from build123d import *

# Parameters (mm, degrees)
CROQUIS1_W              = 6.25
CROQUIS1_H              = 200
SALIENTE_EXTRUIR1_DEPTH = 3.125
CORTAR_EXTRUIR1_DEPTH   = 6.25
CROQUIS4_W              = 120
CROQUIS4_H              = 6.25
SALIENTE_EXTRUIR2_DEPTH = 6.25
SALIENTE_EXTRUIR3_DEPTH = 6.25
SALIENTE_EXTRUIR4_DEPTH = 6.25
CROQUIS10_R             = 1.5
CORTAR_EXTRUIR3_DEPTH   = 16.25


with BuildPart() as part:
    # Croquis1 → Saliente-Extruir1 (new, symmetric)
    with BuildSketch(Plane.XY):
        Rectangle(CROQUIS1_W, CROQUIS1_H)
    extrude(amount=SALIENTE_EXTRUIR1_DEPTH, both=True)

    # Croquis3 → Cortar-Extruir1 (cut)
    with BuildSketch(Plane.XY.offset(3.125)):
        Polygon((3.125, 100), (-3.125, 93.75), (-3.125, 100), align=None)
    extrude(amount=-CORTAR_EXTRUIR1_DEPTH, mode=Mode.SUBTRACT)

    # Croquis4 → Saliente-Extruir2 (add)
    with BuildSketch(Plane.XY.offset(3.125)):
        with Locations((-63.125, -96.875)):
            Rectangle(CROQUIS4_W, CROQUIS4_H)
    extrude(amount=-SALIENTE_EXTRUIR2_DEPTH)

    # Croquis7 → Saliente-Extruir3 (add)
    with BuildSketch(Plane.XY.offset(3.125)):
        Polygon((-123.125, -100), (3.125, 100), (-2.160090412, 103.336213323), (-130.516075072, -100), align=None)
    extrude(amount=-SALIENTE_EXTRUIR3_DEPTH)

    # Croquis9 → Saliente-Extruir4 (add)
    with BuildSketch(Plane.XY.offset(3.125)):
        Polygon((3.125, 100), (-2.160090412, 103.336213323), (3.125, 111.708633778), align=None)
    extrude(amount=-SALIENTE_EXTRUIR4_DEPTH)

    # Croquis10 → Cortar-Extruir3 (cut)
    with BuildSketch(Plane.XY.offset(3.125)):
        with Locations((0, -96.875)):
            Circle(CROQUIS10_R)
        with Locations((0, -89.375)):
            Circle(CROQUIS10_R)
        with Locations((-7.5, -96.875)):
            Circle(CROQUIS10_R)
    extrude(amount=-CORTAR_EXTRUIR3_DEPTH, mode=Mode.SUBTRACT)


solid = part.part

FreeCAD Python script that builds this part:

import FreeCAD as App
import Part
import Sketcher

V = App.Vector

doc = App.newDocument("Part")
body = doc.addObject("PartDesign::Body", "Body")

# Sketch on XY plane
sketch1 = body.newObject("Sketcher::SketchObject", "Sketch")
sketch1.AttachmentSupport = (doc.getObject("XY_Plane"), [""])
sketch1.MapMode = "FlatFace"
sketch1.addGeometry([
    Part.LineSegment(V(-3.125, 100, 0), V(-3.125, -100, 0)),
    Part.LineSegment(V(-3.125, -100, 0), V(3.125, -100, 0)),
    Part.LineSegment(V(3.125, -100, 0), V(3.125, 100, 0)),
    Part.LineSegment(V(3.125, 100, 0), V(-3.125, 100, 0)),
], False)
sketch1.addConstraint([
    Sketcher.Constraint("Coincident", 0, 2, 1, 1),
    Sketcher.Constraint("Coincident", 1, 2, 2, 1),
    Sketcher.Constraint("Coincident", 2, 2, 3, 1),
    Sketcher.Constraint("Coincident", 3, 2, 0, 1),
    Sketcher.Constraint("Vertical", 0),
    Sketcher.Constraint("Horizontal", 1),
    Sketcher.Constraint("Vertical", 2),
    Sketcher.Constraint("Horizontal", 3),
    Sketcher.Constraint("Symmetric", 0, 2, 2, 2, -1, 1),
    Sketcher.Constraint("DistanceY", 0, 2, 0, 1, 200.0),
    Sketcher.Constraint("DistanceX", 1, 1, 1, 2, 6.25),
])
pad1 = body.newObject("PartDesign::Pad", "Pad")
pad1.Profile = sketch1
pad1.Length = 6.25
pad1.Midplane = True

# Sketch on XY plane
sketch2 = body.newObject("Sketcher::SketchObject", "Sketch001")
sketch2.AttachmentSupport = (doc.getObject("XY_Plane"), [""])
sketch2.MapMode = "FlatFace"
sketch2.AttachmentOffset = App.Placement(V(0, 0, 3.125), App.Rotation())
sketch2.addGeometry([
    Part.LineSegment(V(-3.125, 93.75, 0), V(3.125, 100, 0)),
    Part.LineSegment(V(3.125, 100, 0), V(-3.125, 100, 0)),
    Part.LineSegment(V(-3.125, 100, 0), V(-3.125, 93.75, 0)),
], False)
sketch2.addConstraint([
    Sketcher.Constraint("Coincident", 0, 2, 1, 1),
    Sketcher.Constraint("Coincident", 1, 2, 2, 1),
    Sketcher.Constraint("Coincident", 2, 2, 0, 1),
    Sketcher.Constraint("Horizontal", 1),
    Sketcher.Constraint("Vertical", 2),
    Sketcher.Constraint("Equal", 1, 2),
    Sketcher.Constraint("DistanceY", -1, 1, 0, 2, 100.0),
    Sketcher.Constraint("DistanceX", 1, 2, 1, 1, 6.25),
    Sketcher.Constraint("DistanceX", -1, 1, 0, 2, 3.125),
])
pocket1 = body.newObject("PartDesign::Pocket", "Pocket")
pocket1.Profile = sketch2
pocket1.Length = 6.25

# Sketch on XY plane
sketch3 = body.newObject("Sketcher::SketchObject", "Sketch002")
sketch3.AttachmentSupport = (doc.getObject("XY_Plane"), [""])
sketch3.MapMode = "FlatFace"
sketch3.AttachmentOffset = App.Placement(V(0, 0, 3.125), App.Rotation())
sketch3.addGeometry([
    Part.LineSegment(V(-123.125, -93.75, 0), V(-123.125, -100, 0)),
    Part.LineSegment(V(-123.125, -100, 0), V(-3.125, -100, 0)),
    Part.LineSegment(V(-3.125, -100, 0), V(-3.125, -93.75, 0)),
    Part.LineSegment(V(-3.125, -93.75, 0), V(-123.125, -93.75, 0)),
], False)
sketch3.addConstraint([
    Sketcher.Constraint("Coincident", 0, 2, 1, 1),
    Sketcher.Constraint("Coincident", 1, 2, 2, 1),
    Sketcher.Constraint("Coincident", 2, 2, 3, 1),
    Sketcher.Constraint("Coincident", 3, 2, 0, 1),
    Sketcher.Constraint("Vertical", 0),
    Sketcher.Constraint("Horizontal", 1),
    Sketcher.Constraint("Vertical", 2),
    Sketcher.Constraint("Horizontal", 3),
    Sketcher.Constraint("DistanceX", 1, 1, 1, 2, 120.0),
    Sketcher.Constraint("DistanceY", 0, 2, -1, 1, 100.0),
    Sketcher.Constraint("DistanceY", 0, 2, 0, 1, 6.25),
    Sketcher.Constraint("DistanceX", 0, 2, -1, 1, 123.125),
])
pad2 = body.newObject("PartDesign::Pad", "Pad001")
pad2.Profile = sketch3
pad2.Length = 6.25
pad2.Reversed = True

# Sketch on XY plane
sketch4 = body.newObject("Sketcher::SketchObject", "Sketch003")
sketch4.AttachmentSupport = (doc.getObject("XY_Plane"), [""])
sketch4.MapMode = "FlatFace"
sketch4.AttachmentOffset = App.Placement(V(0, 0, 3.125), App.Rotation())
sketch4.addGeometry([
    Part.LineSegment(V(-123.125, -100, 0), V(3.125, 100, 0)),
    Part.LineSegment(V(3.125, 100, 0), V(-2.16009, 103.336213, 0)),
    Part.LineSegment(V(-2.16009, 103.336213, 0), V(-130.516075, -100, 0)),
    Part.LineSegment(V(-130.516075, -100, 0), V(-123.125, -100, 0)),
], False)
sketch4.addConstraint([
    Sketcher.Constraint("Coincident", 0, 2, 1, 1),
    Sketcher.Constraint("Coincident", 1, 2, 2, 1),
    Sketcher.Constraint("Coincident", 2, 2, 3, 1),
    Sketcher.Constraint("Coincident", 3, 2, 0, 1),
    Sketcher.Constraint("Horizontal", 3),
    Sketcher.Constraint("Perpendicular", 0, 1),
    Sketcher.Constraint("Perpendicular", 1, 2),
    Sketcher.Constraint("DistanceY", -1, 1, 0, 2, 100.0),
    Sketcher.Constraint("DistanceY", 2, 2, -1, 1, 100.0),
    Sketcher.Constraint("Distance", 1, 6.25),
    Sketcher.Constraint("DistanceX", 3, 2, 0, 2, 126.25),
    Sketcher.Constraint("DistanceX", -1, 1, 0, 2, 3.125),
])
pad3 = body.newObject("PartDesign::Pad", "Pad002")
pad3.Profile = sketch4
pad3.Length = 6.25
pad3.Reversed = True

# Sketch on XY plane
sketch5 = body.newObject("Sketcher::SketchObject", "Sketch004")
sketch5.AttachmentSupport = (doc.getObject("XY_Plane"), [""])
sketch5.MapMode = "FlatFace"
sketch5.AttachmentOffset = App.Placement(V(0, 0, 3.125), App.Rotation())
sketch5.addGeometry([
    Part.LineSegment(V(-2.16009, 103.336213, 0), V(3.125, 100, 0)),
    Part.LineSegment(V(3.125, 100, 0), V(3.125, 111.708634, 0)),
    Part.LineSegment(V(3.125, 111.708634, 0), V(-2.16009, 103.336213, 0)),
], False)
sketch5.addConstraint([
    Sketcher.Constraint("Coincident", 0, 2, 1, 1),
    Sketcher.Constraint("Coincident", 1, 2, 2, 1),
    Sketcher.Constraint("Coincident", 2, 2, 0, 1),
    Sketcher.Constraint("Vertical", 1),
    Sketcher.Constraint("Perpendicular", 0, 2),
    Sketcher.Constraint("DistanceY", -1, 1, 0, 2, 100.0),
    Sketcher.Constraint("Distance", 0, 6.25),
    Sketcher.Constraint("DistanceX", -1, 1, 0, 2, 3.125),
    Sketcher.Constraint("Distance", 2, 9.90099),
])
pad4 = body.newObject("PartDesign::Pad", "Pad003")
pad4.Profile = sketch5
pad4.Length = 6.25
pad4.Reversed = True

# Sketch on XY plane
sketch6 = body.newObject("Sketcher::SketchObject", "Sketch005")
sketch6.AttachmentSupport = (doc.getObject("XY_Plane"), [""])
sketch6.MapMode = "FlatFace"
sketch6.AttachmentOffset = App.Placement(V(0, 0, 3.125), App.Rotation())
sketch6.addGeometry([
    Part.Circle(V(0, -96.875, 0), V(0, 0, 1), 1.5),
    Part.Circle(V(0, -89.375, 0), V(0, 0, 1), 1.5),
    Part.Circle(V(-7.5, -96.875, 0), V(0, 0, 1), 1.5),
], False)
sketch6.addConstraint([
    Sketcher.Constraint("Equal", 0, 1),
    Sketcher.Constraint("Equal", 1, 2),
    Sketcher.Constraint("PointOnObject", 0, 3, -2),
    Sketcher.Constraint("PointOnObject", 1, 3, -2),
    Sketcher.Constraint("Horizontal", 0, 3, 2, 3),
    Sketcher.Constraint("Diameter", 0, 3.0),
    Sketcher.Constraint("DistanceX", 2, 3, -1, 1, 7.5),
    Sketcher.Constraint("DistanceY", 0, 3, 1, 3, 7.5),
    Sketcher.Constraint("DistanceY", 0, 3, -1, 1, 96.875),
])
pocket2 = body.newObject("PartDesign::Pocket", "Pocket001")
pocket2.Profile = sketch6
pocket2.Length = 16.25

doc.recompute()
